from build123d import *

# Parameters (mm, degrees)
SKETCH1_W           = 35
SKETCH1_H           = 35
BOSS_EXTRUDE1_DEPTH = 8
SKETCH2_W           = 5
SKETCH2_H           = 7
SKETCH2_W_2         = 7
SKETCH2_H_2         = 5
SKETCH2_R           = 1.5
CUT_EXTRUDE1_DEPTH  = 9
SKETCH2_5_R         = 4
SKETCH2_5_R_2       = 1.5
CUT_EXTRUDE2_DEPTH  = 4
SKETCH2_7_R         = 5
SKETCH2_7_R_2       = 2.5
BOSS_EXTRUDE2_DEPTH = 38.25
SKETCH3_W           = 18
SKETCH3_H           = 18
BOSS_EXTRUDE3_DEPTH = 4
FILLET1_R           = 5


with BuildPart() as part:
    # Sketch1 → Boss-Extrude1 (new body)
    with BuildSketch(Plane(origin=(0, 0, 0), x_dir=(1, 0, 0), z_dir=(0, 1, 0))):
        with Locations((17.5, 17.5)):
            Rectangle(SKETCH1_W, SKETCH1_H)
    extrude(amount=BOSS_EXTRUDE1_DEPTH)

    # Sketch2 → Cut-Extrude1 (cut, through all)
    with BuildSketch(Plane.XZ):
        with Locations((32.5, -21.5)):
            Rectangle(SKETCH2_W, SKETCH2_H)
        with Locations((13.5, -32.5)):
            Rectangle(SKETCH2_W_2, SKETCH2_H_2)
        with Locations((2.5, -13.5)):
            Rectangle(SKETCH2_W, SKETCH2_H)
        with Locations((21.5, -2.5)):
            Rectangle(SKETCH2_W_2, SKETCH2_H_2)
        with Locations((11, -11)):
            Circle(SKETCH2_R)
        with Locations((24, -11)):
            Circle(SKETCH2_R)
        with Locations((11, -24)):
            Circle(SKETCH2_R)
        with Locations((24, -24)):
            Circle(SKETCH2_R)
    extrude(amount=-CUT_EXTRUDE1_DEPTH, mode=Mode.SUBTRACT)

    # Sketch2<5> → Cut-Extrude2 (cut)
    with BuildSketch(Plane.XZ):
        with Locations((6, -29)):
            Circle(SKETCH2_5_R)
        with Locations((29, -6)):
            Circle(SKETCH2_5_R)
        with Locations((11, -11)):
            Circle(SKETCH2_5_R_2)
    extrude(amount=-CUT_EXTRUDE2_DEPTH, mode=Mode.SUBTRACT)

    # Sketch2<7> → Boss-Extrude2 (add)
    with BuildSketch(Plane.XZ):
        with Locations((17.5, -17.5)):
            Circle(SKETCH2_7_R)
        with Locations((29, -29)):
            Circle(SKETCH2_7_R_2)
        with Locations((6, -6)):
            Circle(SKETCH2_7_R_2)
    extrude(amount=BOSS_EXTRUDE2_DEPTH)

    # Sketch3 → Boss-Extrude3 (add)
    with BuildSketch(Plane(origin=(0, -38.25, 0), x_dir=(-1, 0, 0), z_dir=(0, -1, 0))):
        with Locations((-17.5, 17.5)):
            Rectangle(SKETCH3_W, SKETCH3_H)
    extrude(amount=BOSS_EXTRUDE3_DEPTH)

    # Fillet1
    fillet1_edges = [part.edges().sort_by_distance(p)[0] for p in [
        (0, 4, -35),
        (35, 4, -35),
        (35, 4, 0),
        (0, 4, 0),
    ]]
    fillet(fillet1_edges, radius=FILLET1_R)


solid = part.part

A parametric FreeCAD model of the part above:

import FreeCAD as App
import Part
import Sketcher
Q = App.Units.Quantity


def edges_at(feature, points):
    """Names of the edges that pass closest to the given points."""
    edges = feature.Shape.Edges
    near = lambda p: min(range(len(edges)), key=lambda i: edges[i].distToShape(Part.Vertex(*p))[0])
    return sorted({f"Edge{near(p) + 1}" for p in points})


def add_polygon(sketch, points):
    """Adds a closed chain of lines whose ends are joined by coincident constraints."""
    first, n = sketch.GeometryCount, len(points)
    for a, b in zip(points, points[1:] + points[:1]):
        sketch.addGeometry(Part.LineSegment(App.Vector(*a, 0), App.Vector(*b, 0)), False)
    for i in range(n):
        sketch.addConstraint(Sketcher.Constraint("Coincident", first + i, 2, first + (i + 1) % n, 1))

doc = App.newDocument("Part")
body = doc.addObject("PartDesign::Body", "Body")

sketch1 = body.newObject("Sketcher::SketchObject", "Sketch")
sketch1.AttachmentSupport = (doc.getObject("XZ_Plane"), [""])
sketch1.MapMode = "FlatFace"
add_polygon(sketch1, [(0, -35), (0, 0), (35, 0), (35, -35)])
sketch1.addConstraint([
    Sketcher.Constraint("Vertical", 0),
    Sketcher.Constraint("Horizontal", 1),
    Sketcher.Constraint("Vertical", 2),
    Sketcher.Constraint("Horizontal", 3),
    Sketcher.Constraint("Coincident", 0, 2, -1, 1),
    Sketcher.Constraint("Equal", 3, 0),
    Sketcher.Constraint("DistanceX", 1, 1, 1, 2, Q("35 mm")),
])
pad1 = body.newObject("PartDesign::Pad", "Pad")
pad1.Profile = sketch1
pad1.Length = 8
pad1.Reversed = True

sketch2 = body.newObject("Sketcher::SketchObject", "Sketch001")
sketch2.AttachmentSupport = (doc.getObject("XZ_Plane"), [""])
sketch2.MapMode = "FlatFace"
add_polygon(sketch2, [(30, -18), (30, -25), (35, -25), (35, -18)])
add_polygon(sketch2, [(10, -30), (10, -35), (17, -35), (17, -30)])
add_polygon(sketch2, [(0, -10), (0, -17), (5, -17), (5, -10)])
add_polygon(sketch2, [(18, 0), (18, -5), (25, -5), (25, 0)])
sketch2.addGeometry(Part.Circle(App.Vector(11, -11, 0), App.Vector(0, 0, 1), 1.5), False)
sketch2.addGeometry(Part.Circle(App.Vector(24, -11, 0), App.Vector(0, 0, 1), 1.5), False)
sketch2.addGeometry(Part.Circle(App.Vector(11, -24, 0), App.Vector(0, 0, 1), 1.5), False)
sketch2.addGeometry(Part.Circle(App.Vector(24, -24, 0), App.Vector(0, 0, 1), 1.5), False)
sketch2.addConstraint([
    Sketcher.Constraint("Vertical", 0),
    Sketcher.Constraint("Horizontal", 1),
    Sketcher.Constraint("Vertical", 2),
    Sketcher.Constraint("Horizontal", 3),
    Sketcher.Constraint("Vertical", 4),
    Sketcher.Constraint("Horizontal", 5),
    Sketcher.Constraint("Vertical", 6),
    Sketcher.Constraint("Horizontal", 7),
    Sketcher.Constraint("Vertical", 8),
    Sketcher.Constraint("Horizontal", 9),
    Sketcher.Constraint("Vertical", 10),
    Sketcher.Constraint("Horizontal", 11),
    Sketcher.Constraint("Vertical", 12),
    Sketcher.Constraint("Horizontal", 13),
    Sketcher.Constraint("Vertical", 14),
    Sketcher.Constraint("Horizontal", 15),
    Sketcher.Constraint("Equal", 16, 17),
    Sketcher.Constraint("Equal", 17, 18),
    Sketcher.Constraint("Equal", 18, 19),
    Sketcher.Constraint("PointOnObject", 8, 2, -2),
    Sketcher.Constraint("PointOnObject", 14, 2, -1),
    Sketcher.Constraint("Horizontal", 16, 3, 17, 3),
    Sketcher.Constraint("Horizontal", 18, 3, 19, 3),
    Sketcher.Constraint("Vertical", 16, 3, 18, 3),
    Sketcher.Constraint("Vertical", 17, 3, 19, 3),
    Sketcher.Constraint("Equal", 3, 9),
    Sketcher.Constraint("Equal", 7, 13),
    Sketcher.Constraint("Equal", 15, 0),
    Sketcher.Constraint("Equal", 11, 4),
    Sketcher.Constraint("Equal", 2, 8),
    Sketcher.Constraint("Equal", 6, 12),
    Sketcher.Constraint("Diameter", 16, Q("3 mm")),
    Sketcher.Constraint("DistanceX", 1, 1, 1, 2, Q("5 mm")),
    Sketcher.Constraint("DistanceX", 5, 1, 5, 2, Q("7 mm")),
    Sketcher.Constraint("DistanceX", -1, 1, 16, 3, Q("11 mm")),
    Sketcher.Constraint("DistanceY", 16, 3, -1, 1, Q("11 mm")),
    Sketcher.Constraint("DistanceX", -1, 1, 17, 3, Q("24 mm")),
    Sketcher.Constraint("DistanceY", 18, 3, -1, 1, Q("24 mm")),
    Sketcher.Constraint("DistanceX", -1, 1, 0, 2, Q("30 mm")),
    Sketcher.Constraint("DistanceY", 0, 2, -1, 1, Q("25 mm")),
    Sketcher.Constraint("DistanceX", -1, 1, 4, 2, Q("10 mm")),
    Sketcher.Constraint("DistanceY", 4, 2, -1, 1, Q("35 mm")),
    Sketcher.Constraint("DistanceY", 8, 2, -1, 1, Q("17 mm")),
    Sketcher.Constraint("DistanceX", -1, 1, 12, 2, Q("18 mm")),
])
pocket1 = body.newObject("PartDesign::Pocket", "Pocket")
pocket1.Profile = sketch2
pocket1.Type = "ThroughAll"

sketch3 = body.newObject("Sketcher::SketchObject", "Sketch002")
sketch3.AttachmentSupport = (doc.getObject("XZ_Plane"), [""])
sketch3.MapMode = "FlatFace"
sketch3.addGeometry([
    Part.Circle(App.Vector(6, -29, 0), App.Vector(0, 0, 1), 4),
    Part.Circle(App.Vector(29, -6, 0), App.Vector(0, 0, 1), 4),
    Part.Circle(App.Vector(11, -11, 0), App.Vector(0, 0, 1), 1.5),
], False)
sketch3.addConstraint([
    Sketcher.Constraint("Equal", 0, 1),
    Sketcher.Constraint("Diameter", 0, Q("8 mm")),
    Sketcher.Constraint("Diameter", 2, Q("3 mm")),
    Sketcher.Constraint("DistanceX", -1, 1, 0, 3, Q("6 mm")),
    Sketcher.Constraint("DistanceY", 0, 3, -1, 1, Q("29 mm")),
    Sketcher.Constraint("DistanceX", -1, 1, 1, 3, Q("29 mm")),
    Sketcher.Constraint("DistanceY", 1, 3, -1, 1, Q("6 mm")),
    Sketcher.Constraint("DistanceX", -1, 1, 2, 3, Q("11 mm")),
    Sketcher.Constraint("DistanceY", 2, 3, -1, 1, Q("11 mm")),
])
pocket2 = body.newObject("PartDesign::Pocket", "Pocket001")
pocket2.Profile = sketch3
pocket2.Length = 4

sketch4 = body.newObject("Sketcher::SketchObject", "Sketch003")
sketch4.AttachmentSupport = (doc.getObject("XZ_Plane"), [""])
sketch4.MapMode = "FlatFace"
sketch4.addGeometry([
    Part.Circle(App.Vector(17.5, -17.5, 0), App.Vector(0, 0, 1), 5),
    Part.Circle(App.Vector(29, -29, 0), App.Vector(0, 0, 1), 2.5),
    Part.Circle(App.Vector(6, -6, 0), App.Vector(0, 0, 1), 2.5),
], False)
sketch4.addConstraint([
    Sketcher.Constraint("Equal", 1, 2),
    Sketcher.Constraint("Diameter", 0, Q("10 mm")),
    Sketcher.Constraint("Diameter", 1, Q("5 mm")),
    Sketcher.Constraint("DistanceX", -1, 1, 1, 3, Q("29 mm")),
    Sketcher.Constraint("DistanceY", 1, 3, -1, 1, Q("29 mm")),
    Sketcher.Constraint("DistanceX", -1, 1, 2, 3, Q("6 mm")),
    Sketcher.Constraint("DistanceY", 2, 3, -1, 1, Q("6 mm")),
    Sketcher.Constraint("DistanceX", -1, 1, 0, 3, Q("17.5 mm")),
    Sketcher.Constraint("DistanceY", 0, 3, -1, 1, Q("17.5 mm")),
])
pad2 = body.newObject("PartDesign::Pad", "Pad001")
pad2.Profile = sketch4
pad2.Length = 38.25

sketch5 = body.newObject("Sketcher::SketchObject", "Sketch004")
sketch5.AttachmentSupport = (doc.getObject("XZ_Plane"), [""])
sketch5.MapMode = "FlatFace"
sketch5.AttachmentOffset = App.Placement(App.Vector(0, 0, 38.25), App.Rotation())
add_polygon(sketch5, [(26, -26), (26, -8), (8, -8), (8, -26)])
sketch5.addConstraint([
    Sketcher.Constraint("Vertical", 0),
    Sketcher.Constraint("Horizontal", 1),
    Sketcher.Constraint("Vertical", 2),
    Sketcher.Constraint("Horizontal", 3),
    Sketcher.Constraint("Equal", 3, 0),
    Sketcher.Constraint("DistanceX", 1, 2, 1, 1, Q("18 mm")),
    Sketcher.Constraint("DistanceX", -1, 1, 0, 2, Q("26.5 mm")),
    Sketcher.Constraint("DistanceY", 0, 2, -1, 1, Q("8.5 mm")),
])
pad3 = body.newObject("PartDesign::Pad", "Pad002")
pad3.Profile = sketch5
pad3.Length = 4
doc.recompute()

fillet = body.newObject("PartDesign::Fillet", "Fillet")
fillet.Base = (pad3, edges_at(pad3, [
    (0, 4, -35),
    (35, 4, -35),
    (35, 4, 0),
    (0, 4, 0),
]))
fillet.Radius = 5

doc.recompute()
